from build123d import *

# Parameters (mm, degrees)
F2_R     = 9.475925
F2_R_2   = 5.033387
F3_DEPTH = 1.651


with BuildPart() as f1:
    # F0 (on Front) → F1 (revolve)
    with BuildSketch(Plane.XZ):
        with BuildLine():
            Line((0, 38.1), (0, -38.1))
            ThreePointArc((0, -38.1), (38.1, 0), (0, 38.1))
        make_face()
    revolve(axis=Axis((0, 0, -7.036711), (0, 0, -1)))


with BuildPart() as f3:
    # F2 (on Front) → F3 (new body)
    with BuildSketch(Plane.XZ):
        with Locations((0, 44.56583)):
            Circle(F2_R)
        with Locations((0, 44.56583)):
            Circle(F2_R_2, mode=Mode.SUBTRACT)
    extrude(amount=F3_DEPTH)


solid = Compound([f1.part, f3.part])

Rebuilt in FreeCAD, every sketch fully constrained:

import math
import FreeCAD as App
import Part
import Sketcher
from FreeCAD import Vector
Q = App.Units.Quantity

doc = App.newDocument("Part")
body = doc.addObject("PartDesign::Body", "Body")

# Sketch on XZ plane
sketch1 = body.newObject("Sketcher::SketchObject", "Sketch")
sketch1.AttachmentSupport = (doc.getObject("XZ_Plane"), [""])
sketch1.MapMode = "FlatFace"
sketch1.addGeometry(Part.LineSegment(Vector(0, 38, 0), Vector(0, -38, 0)), False)
sketch1.addGeometry(Part.ArcOfCircle(Part.Circle(Vector(0, 0, 0), Vector(0, 0, 1), 38), math.radians(-90), math.radians(90)), False)
sketch1.addConstraint(Sketcher.Constraint("Coincident", 0, 1, 1, 2))
sketch1.addConstraint(Sketcher.Constraint("Coincident", 1, 1, 0, 2))
sketch1.addConstraint(Sketcher.Constraint("Vertical", 0))
sketch1.addConstraint(Sketcher.Constraint("Coincident", 1, 3, -1, 1))
sketch1.addConstraint(Sketcher.Constraint("PointOnObject", 0, 1, -2))
sketch1.addConstraint(Sketcher.Constraint("Radius", 1, Q("1.5 in")))
revolution = body.newObject("PartDesign::Revolution", "Revolution")
revolution.Profile = sketch1
revolution.ReferenceAxis = (sketch1, ["V_Axis"])
revolution.Angle = 360
body2 = doc.addObject("PartDesign::Body", "Body001")

# Sketch on XZ plane
sketch2 = body2.newObject("Sketcher::SketchObject", "Sketch001")
sketch2.AttachmentSupport = (doc.getObject("XZ_Plane001"), [""])
sketch2.MapMode = "FlatFace"
sketch2.addGeometry(Part.Circle(Vector(0, 45, 0), Vector(0, 0, 1), 9), False)
sketch2.addGeometry(Part.Circle(Vector(0, 45, 0), Vector(0, 0, 1), 5), False)
sketch2.addConstraint(Sketcher.Constraint("Coincident", 1, 3, 0, 3))
sketch2.addConstraint(Sketcher.Constraint("PointOnObject", 0, 3, -2))
sketch2.addConstraint(Sketcher.Constraint("Diameter", 0, Q("18.95185 mm")))
sketch2.addConstraint(Sketcher.Constraint("Diameter", 1, Q("10.066774 mm")))
sketch2.addConstraint(Sketcher.Constraint("DistanceY", -1, 1, 0, 3, Q("44.56583 mm")))
pad1 = body2.newObject("PartDesign::Pad", "Pad")
pad1.Profile = sketch2
pad1.Length = Q("0.065 in")

doc.recompute()
